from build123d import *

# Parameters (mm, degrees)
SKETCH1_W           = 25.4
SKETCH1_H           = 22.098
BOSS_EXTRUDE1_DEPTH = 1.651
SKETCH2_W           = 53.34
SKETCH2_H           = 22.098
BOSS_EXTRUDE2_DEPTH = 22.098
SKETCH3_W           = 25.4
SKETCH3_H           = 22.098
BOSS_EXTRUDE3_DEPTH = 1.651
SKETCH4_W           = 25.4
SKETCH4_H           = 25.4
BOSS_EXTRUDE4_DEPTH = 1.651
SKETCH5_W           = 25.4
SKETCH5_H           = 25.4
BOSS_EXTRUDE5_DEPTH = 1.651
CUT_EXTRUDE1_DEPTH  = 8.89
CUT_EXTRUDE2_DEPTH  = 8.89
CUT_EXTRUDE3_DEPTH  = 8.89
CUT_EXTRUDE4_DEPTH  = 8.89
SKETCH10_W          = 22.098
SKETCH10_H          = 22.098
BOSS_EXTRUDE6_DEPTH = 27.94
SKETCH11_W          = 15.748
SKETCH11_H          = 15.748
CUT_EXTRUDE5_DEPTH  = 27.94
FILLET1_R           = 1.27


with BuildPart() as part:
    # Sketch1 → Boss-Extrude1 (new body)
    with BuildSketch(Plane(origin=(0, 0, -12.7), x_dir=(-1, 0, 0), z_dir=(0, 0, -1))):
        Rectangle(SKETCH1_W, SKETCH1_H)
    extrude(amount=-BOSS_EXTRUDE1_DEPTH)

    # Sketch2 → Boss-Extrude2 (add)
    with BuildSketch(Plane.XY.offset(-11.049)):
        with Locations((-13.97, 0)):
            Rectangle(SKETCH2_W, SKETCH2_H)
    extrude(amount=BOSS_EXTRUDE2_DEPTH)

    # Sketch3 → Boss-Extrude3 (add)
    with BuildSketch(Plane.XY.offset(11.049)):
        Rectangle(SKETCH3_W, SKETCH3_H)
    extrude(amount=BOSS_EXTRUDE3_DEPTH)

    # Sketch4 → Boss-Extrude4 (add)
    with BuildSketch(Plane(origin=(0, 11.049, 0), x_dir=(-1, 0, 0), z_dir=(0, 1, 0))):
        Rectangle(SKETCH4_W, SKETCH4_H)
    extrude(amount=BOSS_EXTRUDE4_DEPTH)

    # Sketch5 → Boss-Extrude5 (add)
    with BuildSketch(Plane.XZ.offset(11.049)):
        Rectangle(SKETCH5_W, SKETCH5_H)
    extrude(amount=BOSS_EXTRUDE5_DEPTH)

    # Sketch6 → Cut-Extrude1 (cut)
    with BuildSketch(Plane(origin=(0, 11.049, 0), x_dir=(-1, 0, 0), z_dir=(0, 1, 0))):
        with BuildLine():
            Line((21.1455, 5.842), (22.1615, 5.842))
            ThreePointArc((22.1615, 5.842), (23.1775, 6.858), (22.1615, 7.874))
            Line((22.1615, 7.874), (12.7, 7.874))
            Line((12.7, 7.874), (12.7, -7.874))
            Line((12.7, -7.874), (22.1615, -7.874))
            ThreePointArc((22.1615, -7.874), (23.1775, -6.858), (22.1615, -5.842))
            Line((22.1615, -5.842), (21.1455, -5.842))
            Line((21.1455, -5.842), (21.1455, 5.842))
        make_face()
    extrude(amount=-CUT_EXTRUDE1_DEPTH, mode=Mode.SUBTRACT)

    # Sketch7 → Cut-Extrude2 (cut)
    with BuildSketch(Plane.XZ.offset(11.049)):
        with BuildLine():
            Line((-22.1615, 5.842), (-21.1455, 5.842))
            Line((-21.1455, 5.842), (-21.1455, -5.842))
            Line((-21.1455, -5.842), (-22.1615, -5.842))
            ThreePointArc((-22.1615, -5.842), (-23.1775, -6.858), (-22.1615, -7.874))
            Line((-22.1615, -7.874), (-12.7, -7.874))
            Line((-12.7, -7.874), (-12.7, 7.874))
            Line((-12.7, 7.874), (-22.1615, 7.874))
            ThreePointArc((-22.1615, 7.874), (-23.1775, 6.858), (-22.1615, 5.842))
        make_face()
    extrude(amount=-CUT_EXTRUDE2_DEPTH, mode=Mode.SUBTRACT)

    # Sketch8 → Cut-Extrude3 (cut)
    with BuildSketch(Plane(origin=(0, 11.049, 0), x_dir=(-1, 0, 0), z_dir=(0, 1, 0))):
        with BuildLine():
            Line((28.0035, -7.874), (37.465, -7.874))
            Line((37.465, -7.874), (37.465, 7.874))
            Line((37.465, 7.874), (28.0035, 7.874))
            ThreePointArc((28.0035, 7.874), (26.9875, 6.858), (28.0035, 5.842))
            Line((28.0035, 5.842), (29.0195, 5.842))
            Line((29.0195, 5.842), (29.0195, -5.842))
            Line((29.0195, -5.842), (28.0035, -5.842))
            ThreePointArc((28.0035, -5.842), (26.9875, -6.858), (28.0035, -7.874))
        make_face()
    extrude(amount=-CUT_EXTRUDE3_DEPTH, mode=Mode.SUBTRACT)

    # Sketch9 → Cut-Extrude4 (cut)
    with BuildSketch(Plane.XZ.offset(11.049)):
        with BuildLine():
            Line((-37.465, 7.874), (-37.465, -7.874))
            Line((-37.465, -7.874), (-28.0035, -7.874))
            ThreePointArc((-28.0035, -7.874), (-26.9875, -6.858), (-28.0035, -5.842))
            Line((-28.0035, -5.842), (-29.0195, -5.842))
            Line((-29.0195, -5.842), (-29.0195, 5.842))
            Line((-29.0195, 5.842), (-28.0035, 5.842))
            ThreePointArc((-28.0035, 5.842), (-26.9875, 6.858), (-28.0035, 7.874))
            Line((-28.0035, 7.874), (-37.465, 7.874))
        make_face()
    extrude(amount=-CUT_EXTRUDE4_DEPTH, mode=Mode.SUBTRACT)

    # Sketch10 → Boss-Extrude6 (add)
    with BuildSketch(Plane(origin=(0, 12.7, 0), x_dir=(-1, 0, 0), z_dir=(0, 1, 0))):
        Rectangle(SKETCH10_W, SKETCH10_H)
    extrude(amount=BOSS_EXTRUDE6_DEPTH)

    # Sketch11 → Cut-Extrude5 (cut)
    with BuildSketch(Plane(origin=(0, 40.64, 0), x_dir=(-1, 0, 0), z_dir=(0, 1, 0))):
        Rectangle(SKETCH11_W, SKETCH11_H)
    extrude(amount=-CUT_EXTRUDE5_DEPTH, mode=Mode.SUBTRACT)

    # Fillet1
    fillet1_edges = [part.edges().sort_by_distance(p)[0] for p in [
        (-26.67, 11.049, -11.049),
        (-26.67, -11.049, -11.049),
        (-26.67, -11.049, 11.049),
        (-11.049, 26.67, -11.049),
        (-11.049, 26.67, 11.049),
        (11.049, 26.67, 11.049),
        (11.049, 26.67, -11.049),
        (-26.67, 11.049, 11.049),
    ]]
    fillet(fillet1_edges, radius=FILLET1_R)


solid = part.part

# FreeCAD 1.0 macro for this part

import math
import FreeCAD as App
import Part
import Sketcher
Q = App.Units.Quantity


def edges_at(feature, points):
    """Names of the edges that pass closest to the given points."""
    edges = feature.Shape.Edges
    near = lambda p: min(range(len(edges)), key=lambda i: edges[i].distToShape(Part.Vertex(*p))[0])
    return sorted({f"Edge{near(p) + 1}" for p in points})

doc = App.newDocument("Part")
params = doc.addObject("Spreadsheet::Sheet", "Params")
for row, (alias, value) in enumerate([
    ("sketch1_width", "1 in"),
    ("sketch1_height", "0.87 in"),
    ("pad1_length", "0.065 in"),
    ("sketch2_width", "2.1 in"),
    ("sketch2_height", "0.87 in"),
    ("pad2_length", "0.87 in"),
    ("sketch3_width", "1 in"),
    ("sketch3_height", "0.87 in"),
    ("pad3_length", "0.065 in"),
    ("sketch4_width", "1 in"),
    ("pad4_length", "0.065 in"),
    ("sketch5_width", "1 in"),
    ("pad5_length", "0.065 in"),
    ("sketch6_radius", "0.04 in"),
    ("sketch6_width", "0.04 in"),
    ("sketch6_height", "0.62 in"),
    ("pocket1_length", "0.35 in"),
    ("sketch7_radius", "0.04 in"),
    ("sketch7_width", "0.04 in"),
    ("sketch7_height", "0.46 in"),
    ("pocket2_length", "0.35 in"),
    ("sketch8_radius", "0.04 in"),
    ("sketch8_width", "0.04 in"),
    ("sketch8_height", "0.62 in"),
    ("pocket3_length", "0.35 in"),
    ("sketch9_radius", "0.04 in"),
    ("sketch9_width", "0.04 in"),
    ("sketch9_height", "0.62 in"),
    ("pocket4_length", "0.35 in"),
    ("sketch10_width", "0.87 in"),
    ("pad6_length", "1.1 in"),
    ("sketch11_width", "0.62 in"),
    ("pocket5_length", "1.1 in"),
    ("fillet_radius", "0.05 in"),
], start=1):
    params.set(f"A{row}", alias)
    params.set(f"B{row}", "=" + value)
    params.setAlias(f"B{row}", alias)

body = doc.addObject("PartDesign::Body", "Body")

sketch1 = doc.addObject("Sketcher::SketchObject", "Sketch")
body.addObject(sketch1)
sketch1.AttachmentSupport = (doc.XY_Plane, [""])
sketch1.MapMode = "FlatFace"
sketch1.AttachmentOffset = App.Placement(App.Vector(0, 0, -0.5 * 25.4), App.Rotation())
sketch1.addGeometry([
    Part.LineSegment(App.Vector(13, 11, 0), App.Vector(13, -11, 0)),
    Part.LineSegment(App.Vector(13, -11, 0), App.Vector(-13, -11, 0)),
    Part.LineSegment(App.Vector(-13, -11, 0), App.Vector(-13, 11, 0)),
    Part.LineSegment(App.Vector(-13, 11, 0), App.Vector(13, 11, 0)),
], False)
sketch1.addConstraint([
    Sketcher.Constraint("Coincident", 0, 2, 1, 1),
    Sketcher.Constraint("Coincident", 1, 2, 2, 1),
    Sketcher.Constraint("Coincident", 2, 2, 3, 1),
    Sketcher.Constraint("Coincident", 3, 2, 0, 1),
    Sketcher.Constraint("Vertical", 0),
    Sketcher.Constraint("Horizontal", 1),
    Sketcher.Constraint("Vertical", 2),
    Sketcher.Constraint("Horizontal", 3),
    Sketcher.Constraint("Symmetric", 0, 2, 2, 2, -1, 1),
    Sketcher.Constraint("DistanceX", 1, 2, 1, 1, Q("1 in")),
    Sketcher.Constraint("DistanceY", 0, 2, 0, 1, Q("0.87 in")),
])
sketch1.setExpression("Constraints[9]", "Params.sketch1_width")
sketch1.setExpression("Constraints[10]", "Params.sketch1_height")
pad1 = doc.addObject("PartDesign::Pad", "Pad")
body.addObject(pad1)
pad1.Profile = sketch1
pad1.setExpression("Length", "Params.pad1_length")

sketch2 = doc.addObject("Sketcher::SketchObject", "Sketch001")
body.addObject(sketch2)
sketch2.AttachmentSupport = (doc.XY_Plane, [""])
sketch2.MapMode = "FlatFace"
sketch2.AttachmentOffset = App.Placement(App.Vector(0, 0, -0.435 * 25.4), App.Rotation())
sketch2.addGeometry([
    Part.LineSegment(App.Vector(-41, 11, 0), App.Vector(-41, -11, 0)),
    Part.LineSegment(App.Vector(-41, -11, 0), App.Vector(13, -11, 0)),
    Part.LineSegment(App.Vector(13, -11, 0), App.Vector(13, 11, 0)),
    Part.LineSegment(App.Vector(13, 11, 0), App.Vector(-41, 11, 0)),
], False)
sketch2.addConstraint([
    Sketcher.Constraint("Coincident", 0, 2, 1, 1),
    Sketcher.Constraint("Coincident", 1, 2, 2, 1),
    Sketcher.Constraint("Coincident", 2, 2, 3, 1),
    Sketcher.Constraint("Coincident", 3, 2, 0, 1),
    Sketcher.Constraint("Vertical", 0),
    Sketcher.Constraint("Horizontal", 1),
    Sketcher.Constraint("Vertical", 2),
    Sketcher.Constraint("Horizontal", 3),
    Sketcher.Constraint("DistanceX", 1, 1, 1, 2, Q("2.1 in")),
    Sketcher.Constraint("DistanceY", 0, 2, 0, 1, Q("0.87 in")),
    Sketcher.Constraint("DistanceX", 0, 2, -1, 1, Q("1.6 in")),
    Sketcher.Constraint("DistanceY", 0, 2, -1, 1, Q("0.435 in")),
])
sketch2.setExpression("Constraints[8]", "Params.sketch2_width")
sketch2.setExpression("Constraints[9]", "Params.sketch2_height")
pad2 = doc.addObject("PartDesign::Pad", "Pad001")
body.addObject(pad2)
pad2.Profile = sketch2
pad2.setExpression("Length", "Params.pad2_length")

sketch3 = doc.addObject("Sketcher::SketchObject", "Sketch002")
body.addObject(sketch3)
sketch3.AttachmentSupport = (doc.XY_Plane, [""])
sketch3.MapMode = "FlatFace"
sketch3.AttachmentOffset = App.Placement(App.Vector(0, 0, 0.435 * 25.4), App.Rotation())
sketch3.addGeometry([
    Part.LineSegment(App.Vector(-13, 11, 0), App.Vector(-13, -11, 0)),
    Part.LineSegment(App.Vector(-13, -11, 0), App.Vector(13, -11, 0)),
    Part.LineSegment(App.Vector(13, -11, 0), App.Vector(13, 11, 0)),
    Part.LineSegment(App.Vector(13, 11, 0), App.Vector(-13, 11, 0)),
], False)
sketch3.addConstraint([
    Sketcher.Constraint("Coincident", 0, 2, 1, 1),
    Sketcher.Constraint("Coincident", 1, 2, 2, 1),
    Sketcher.Constraint("Coincident", 2, 2, 3, 1),
    Sketcher.Constraint("Coincident", 3, 2, 0, 1),
    Sketcher.Constraint("Vertical", 0),
    Sketcher.Constraint("Horizontal", 1),
    Sketcher.Constraint("Vertical", 2),
    Sketcher.Constraint("Horizontal", 3),
    Sketcher.Constraint("Symmetric", 0, 2, 2, 2, -1, 1),
    Sketcher.Constraint("DistanceX", 1, 1, 1, 2, Q("1 in")),
    Sketcher.Constraint("DistanceY", 0, 2, 0, 1, Q("0.87 in")),
])
sketch3.setExpression("Constraints[9]", "Params.sketch3_width")
sketch3.setExpression("Constraints[10]", "Params.sketch3_height")
pad3 = doc.addObject("PartDesign::Pad", "Pad002")
body.addObject(pad3)
pad3.Profile = sketch3
pad3.setExpression("Length", "Params.pad3_length")

sketch4 = doc.addObject("Sketcher::SketchObject", "Sketch003")
body.addObject(sketch4)
sketch4.AttachmentSupport = (doc.XZ_Plane, [""])
sketch4.MapMode = "FlatFace"
sketch4.AttachmentOffset = App.Placement(App.Vector(0, 0, -0.435 * 25.4), App.Rotation())
sketch4.addGeometry([
    Part.LineSegment(App.Vector(13, 13, 0), App.Vector(13, -13, 0)),
    Part.LineSegment(App.Vector(13, -13, 0), App.Vector(-13, -13, 0)),
    Part.LineSegment(App.Vector(-13, -13, 0), App.Vector(-13, 13, 0)),
    Part.LineSegment(App.Vector(-13, 13, 0), App.Vector(13, 13, 0)),
], False)
sketch4.addConstraint([
    Sketcher.Constraint("Coincident", 0, 2, 1, 1),
    Sketcher.Constraint("Coincident", 1, 2, 2, 1),
    Sketcher.Constraint("Coincident", 2, 2, 3, 1),
    Sketcher.Constraint("Coincident", 3, 2, 0, 1),
    Sketcher.Constraint("Vertical", 0),
    Sketcher.Constraint("Horizontal", 1),
    Sketcher.Constraint("Vertical", 2),
    Sketcher.Constraint("Horizontal", 3),
    Sketcher.Constraint("Symmetric", 0, 2, 2, 2, -1, 1),
    Sketcher.Constraint("Equal", 3, 0),
    Sketcher.Constraint("DistanceX", 1, 2, 1, 1, Q("1 in")),
])
sketch4.setExpression("Constraints[10]", "Params.sketch4_width")
pad4 = doc.addObject("PartDesign::Pad", "Pad003")
body.addObject(pad4)
pad4.Profile = sketch4
pad4.setExpression("Length", "Params.pad4_length")
pad4.Reversed = True

sketch5 = doc.addObject("Sketcher::SketchObject", "Sketch004")
body.addObject(sketch5)
sketch5.AttachmentSupport = (doc.XZ_Plane, [""])
sketch5.MapMode = "FlatFace"
sketch5.AttachmentOffset = App.Placement(App.Vector(0, 0, 0.435 * 25.4), App.Rotation())
sketch5.addGeometry([
    Part.LineSegment(App.Vector(-13, 13, 0), App.Vector(-13, -13, 0)),
    Part.LineSegment(App.Vector(-13, -13, 0), App.Vector(13, -13, 0)),
    Part.LineSegment(App.Vector(13, -13, 0), App.Vector(13, 13, 0)),
    Part.LineSegment(App.Vector(13, 13, 0), App.Vector(-13, 13, 0)),
], False)
sketch5.addConstraint([
    Sketcher.Constraint("Coincident", 0, 2, 1, 1),
    Sketcher.Constraint("Coincident", 1, 2, 2, 1),
    Sketcher.Constraint("Coincident", 2, 2, 3, 1),
    Sketcher.Constraint("Coincident", 3, 2, 0, 1),
    Sketcher.Constraint("Vertical", 0),
    Sketcher.Constraint("Horizontal", 1),
    Sketcher.Constraint("Vertical", 2),
    Sketcher.Constraint("Horizontal", 3),
    Sketcher.Constraint("Symmetric", 0, 2, 2, 2, -1, 1),
    Sketcher.Constraint("Equal", 3, 0),
    Sketcher.Constraint("DistanceX", 1, 1, 1, 2, Q("1 in")),
])
sketch5.setExpression("Constraints[10]", "Params.sketch5_width")
pad5 = doc.addObject("PartDesign::Pad", "Pad004")
body.addObject(pad5)
pad5.Profile = sketch5
pad5.setExpression("Length", "Params.pad5_length")

sketch6 = doc.addObject("Sketcher::SketchObject", "Sketch005")
body.addObject(sketch6)
sketch6.AttachmentSupport = (doc.XZ_Plane, [""])
sketch6.MapMode = "FlatFace"
sketch6.AttachmentOffset = App.Placement(App.Vector(0, 0, -0.435 * 25.4), App.Rotation())
sketch6.addGeometry([
    Part.LineSegment(App.Vector(-21.1, 5.8, 0), App.Vector(-22.2, 5.8, 0)),
    Part.ArcOfCircle(Part.Circle(App.Vector(-22.2, 6.9, 0), App.Vector(0, 0, 1), 1), math.radians(90), math.radians(270)),
    Part.LineSegment(App.Vector(-22.2, 7.9, 0), App.Vector(-12.7, 7.9, 0)),
    Part.LineSegment(App.Vector(-12.7, 7.9, 0), App.Vector(-12.7, -7.9, 0)),
    Part.LineSegment(App.Vector(-12.7, -7.9, 0), App.Vector(-22.2, -7.9, 0)),
    Part.ArcOfCircle(Part.Circle(App.Vector(-22.2, -6.9, 0), App.Vector(0, 0, 1), 1), math.radians(90), math.radians(270)),
    Part.LineSegment(App.Vector(-22.2, -5.8, 0), App.Vector(-21.1, -5.8, 0)),
    Part.LineSegment(App.Vector(-21.1, -5.8, 0), App.Vector(-21.1, 5.8, 0)),
], False)
sketch6.addConstraint([
    Sketcher.Constraint("Tangent", 0, 2, 1, 2),
    Sketcher.Constraint("Tangent", 1, 1, 2, 1),
    Sketcher.Constraint("Coincident", 2, 2, 3, 1),
    Sketcher.Constraint("Coincident", 3, 2, 4, 1),
    Sketcher.Constraint("Tangent", 4, 2, 5, 2),
    Sketcher.Constraint("Tangent", 5, 1, 6, 1),
    Sketcher.Constraint("Coincident", 6, 2, 7, 1),
    Sketcher.Constraint("Coincident", 7, 2, 0, 1),
    Sketcher.Constraint("Horizontal", 0),
    Sketcher.Constraint("Horizontal", 2),
    Sketcher.Constraint("Vertical", 3),
    Sketcher.Constraint("Horizontal", 4),
    Sketcher.Constraint("Horizontal", 6),
    Sketcher.Constraint("Vertical", 7),
    Sketcher.Constraint("Equal", 1, 5),
    Sketcher.Constraint("Symmetric", 1, 3, 5, 3, -1),
    Sketcher.Constraint("Radius", 1, Q("0.04 in")),
    Sketcher.Constraint("DistanceX", 0, 2, 0, 1, Q("0.04 in")),
    Sketcher.Constraint("DistanceY", 3, 2, 3, 1, Q("0.62 in")),
    Sketcher.Constraint("DistanceX", 2, 2, -1, 1, Q("0.5 in")),
    Sketcher.Constraint("DistanceX", 2, 1, 2, 2, Q("0.3725 in")),
])
sketch6.setExpression("Constraints[16]", "Params.sketch6_radius")
sketch6.setExpression("Constraints[17]", "Params.sketch6_width")
sketch6.setExpression("Constraints[18]", "Params.sketch6_height")
pocket1 = doc.addObject("PartDesign::Pocket", "Pocket")
body.addObject(pocket1)
pocket1.Profile = sketch6
pocket1.setExpression("Length", "Params.pocket1_length")
pocket1.Reversed = True

sketch7 = doc.addObject("Sketcher::SketchObject", "Sketch006")
body.addObject(sketch7)
sketch7.AttachmentSupport = (doc.XZ_Plane, [""])
sketch7.MapMode = "FlatFace"
sketch7.AttachmentOffset = App.Placement(App.Vector(0, 0, 0.435 * 25.4), App.Rotation())
sketch7.addGeometry([
    Part.LineSegment(App.Vector(-22.2, 5.8, 0), App.Vector(-21.1, 5.8, 0)),
    Part.LineSegment(App.Vector(-21.1, 5.8, 0), App.Vector(-21.1, -5.8, 0)),
    Part.LineSegment(App.Vector(-21.1, -5.8, 0), App.Vector(-22.2, -5.8, 0)),
    Part.ArcOfCircle(Part.Circle(App.Vector(-22.2, -6.9, 0), App.Vector(0, 0, 1), 1), math.radians(90), math.radians(270)),
    Part.LineSegment(App.Vector(-22.2, -7.9, 0), App.Vector(-12.7, -7.9, 0)),
    Part.LineSegment(App.Vector(-12.7, -7.9, 0), App.Vector(-12.7, 7.9, 0)),
    Part.LineSegment(App.Vector(-12.7, 7.9, 0), App.Vector(-22.2, 7.9, 0)),
    Part.ArcOfCircle(Part.Circle(App.Vector(-22.2, 6.9, 0), App.Vector(0, 0, 1), 1), math.radians(90), math.radians(270)),
], False)
sketch7.addConstraint([
    Sketcher.Constraint("Coincident", 0, 2, 1, 1),
    Sketcher.Constraint("Coincident", 1, 2, 2, 1),
    Sketcher.Constraint("Tangent", 2, 2, 3, 1),
    Sketcher.Constraint("Tangent", 3, 2, 4, 1),
    Sketcher.Constraint("Coincident", 4, 2, 5, 1),
    Sketcher.Constraint("Coincident", 5, 2, 6, 1),
    Sketcher.Constraint("Tangent", 6, 2, 7, 1),
    Sketcher.Constraint("Tangent", 7, 2, 0, 1),
    Sketcher.Constraint("Horizontal", 0),
    Sketcher.Constraint("Vertical", 1),
    Sketcher.Constraint("Horizontal", 2),
    Sketcher.Constraint("Horizontal", 4),
    Sketcher.Constraint("Vertical", 5),
    Sketcher.Constraint("Horizontal", 6),
    Sketcher.Constraint("Equal", 3, 7),
    Sketcher.Constraint("Symmetric", 3, 3, 7, 3, -1),
    Sketcher.Constraint("Radius", 3, Q("0.04 in")),
    Sketcher.Constraint("DistanceX", 0, 1, 0, 2, Q("0.04 in")),
    Sketcher.Constraint("DistanceY", 1, 2, 1, 1, Q("0.46 in")),
    Sketcher.Constraint("DistanceX", 4, 2, -1, 1, Q("0.5 in")),
    Sketcher.Constraint("DistanceX", 4, 1, 4, 2, Q("0.3725 in")),
])
sketch7.setExpression("Constraints[16]", "Params.sketch7_radius")
sketch7.setExpression("Constraints[17]", "Params.sketch7_width")
sketch7.setExpression("Constraints[18]", "Params.sketch7_height")
pocket2 = doc.addObject("PartDesign::Pocket", "Pocket001")
body.addObject(pocket2)
pocket2.Profile = sketch7
pocket2.setExpression("Length", "Params.pocket2_length")

sketch8 = doc.addObject("Sketcher::SketchObject", "Sketch007")
body.addObject(sketch8)
sketch8.AttachmentSupport = (doc.XZ_Plane, [""])
sketch8.MapMode = "FlatFace"
sketch8.AttachmentOffset = App.Placement(App.Vector(0, 0, -0.435 * 25.4), App.Rotation())
sketch8.addGeometry([
    Part.LineSegment(App.Vector(-28, -7.9, 0), App.Vector(-37.5, -7.9, 0)),
    Part.LineSegment(App.Vector(-37.5, -7.9, 0), App.Vector(-37.5, 7.9, 0)),
    Part.LineSegment(App.Vector(-37.5, 7.9, 0), App.Vector(-28, 7.9, 0)),
    Part.ArcOfCircle(Part.Circle(App.Vector(-28, 6.9, 0), App.Vector(0, 0, 1), 1), math.radians(-90), math.radians(90)),
    Part.LineSegment(App.Vector(-28, 5.8, 0), App.Vector(-29, 5.8, 0)),
    Part.LineSegment(App.Vector(-29, 5.8, 0), App.Vector(-29, -5.8, 0)),
    Part.LineSegment(App.Vector(-29, -5.8, 0), App.Vector(-28, -5.8, 0)),
    Part.ArcOfCircle(Part.Circle(App.Vector(-28, -6.9, 0), App.Vector(0, 0, 1), 1), math.radians(-90), math.radians(90)),
], False)
sketch8.addConstraint([
    Sketcher.Constraint("Coincident", 0, 2, 1, 1),
    Sketcher.Constraint("Coincident", 1, 2, 2, 1),
    Sketcher.Constraint("Tangent", 2, 2, 3, 2),
    Sketcher.Constraint("Tangent", 3, 1, 4, 1),
    Sketcher.Constraint("Coincident", 4, 2, 5, 1),
    Sketcher.Constraint("Coincident", 5, 2, 6, 1),
    Sketcher.Constraint("Tangent", 6, 2, 7, 2),
    Sketcher.Constraint("Tangent", 7, 1, 0, 1),
    Sketcher.Constraint("Horizontal", 0),
    Sketcher.Constraint("Vertical", 1),
    Sketcher.Constraint("Horizontal", 2),
    Sketcher.Constraint("Horizontal", 4),
    Sketcher.Constraint("Vertical", 5),
    Sketcher.Constraint("Horizontal", 6),
    Sketcher.Constraint("Equal", 3, 7),
    Sketcher.Constraint("Symmetric", 3, 3, 7, 3, -1),
    Sketcher.Constraint("Radius", 3, Q("0.04 in")),
    Sketcher.Constraint("DistanceX", 4, 2, 4, 1, Q("0.04 in")),
    Sketcher.Constraint("DistanceY", 1, 1, 1, 2, Q("0.62 in")),
    Sketcher.Constraint("DistanceX", 0, 2, 0, 1, Q("0.3725 in")),
    Sketcher.Constraint("DistanceX", 0, 2, -1, 1, Q("1.475 in")),
])
sketch8.setExpression("Constraints[16]", "Params.sketch8_radius")
sketch8.setExpression("Constraints[17]", "Params.sketch8_width")
sketch8.setExpression("Constraints[18]", "Params.sketch8_height")
pocket3 = doc.addObject("PartDesign::Pocket", "Pocket002")
body.addObject(pocket3)
pocket3.Profile = sketch8
pocket3.setExpression("Length", "Params.pocket3_length")
pocket3.Reversed = True

sketch9 = doc.addObject("Sketcher::SketchObject", "Sketch008")
body.addObject(sketch9)
sketch9.AttachmentSupport = (doc.XZ_Plane, [""])
sketch9.MapMode = "FlatFace"
sketch9.AttachmentOffset = App.Placement(App.Vector(0, 0, 0.435 * 25.4), App.Rotation())
sketch9.addGeometry([
    Part.LineSegment(App.Vector(-37.5, 7.9, 0), App.Vector(-37.5, -7.9, 0)),
    Part.LineSegment(App.Vector(-37.5, -7.9, 0), App.Vector(-28, -7.9, 0)),
    Part.ArcOfCircle(Part.Circle(App.Vector(-28, -6.9, 0), App.Vector(0, 0, 1), 1), math.radians(-90), math.radians(90)),
    Part.LineSegment(App.Vector(-28, -5.8, 0), App.Vector(-29, -5.8, 0)),
    Part.LineSegment(App.Vector(-29, -5.8, 0), App.Vector(-29, 5.8, 0)),
    Part.LineSegment(App.Vector(-29, 5.8, 0), App.Vector(-28, 5.8, 0)),
    Part.ArcOfCircle(Part.Circle(App.Vector(-28, 6.9, 0), App.Vector(0, 0, 1), 1), math.radians(-90), math.radians(90)),
    Part.LineSegment(App.Vector(-28, 7.9, 0), App.Vector(-37.5, 7.9, 0)),
], False)
sketch9.addConstraint([
    Sketcher.Constraint("Coincident", 0, 2, 1, 1),
    Sketcher.Constraint("Tangent", 1, 2, 2, 1),
    Sketcher.Constraint("Tangent", 2, 2, 3, 1),
    Sketcher.Constraint("Coincident", 3, 2, 4, 1),
    Sketcher.Constraint("Coincident", 4, 2, 5, 1),
    Sketcher.Constraint("Tangent", 5, 2, 6, 1),
    Sketcher.Constraint("Tangent", 6, 2, 7, 1),
    Sketcher.Constraint("Coincident", 7, 2, 0, 1),
    Sketcher.Constraint("Vertical", 0),
    Sketcher.Constraint("Horizontal", 1),
    Sketcher.Constraint("Horizontal", 3),
    Sketcher.Constraint("Vertical", 4),
    Sketcher.Constraint("Horizontal", 5),
    Sketcher.Constraint("Horizontal", 7),
    Sketcher.Constraint("Equal", 2, 6),
    Sketcher.Constraint("Symmetric", 2, 3, 6, 3, -1),
    Sketcher.Constraint("Radius", 2, Q("0.04 in")),
    Sketcher.Constraint("DistanceX", 3, 2, 3, 1, Q("0.04 in")),
    Sketcher.Constraint("DistanceY", 0, 2, 0, 1, Q("0.62 in")),
    Sketcher.Constraint("DistanceX", 1, 1, 1, 2, Q("0.3725 in")),
    Sketcher.Constraint("DistanceX", 0, 2, -1, 1, Q("1.475 in")),
])
sketch9.setExpression("Constraints[16]", "Params.sketch9_radius")
sketch9.setExpression("Constraints[17]", "Params.sketch9_width")
sketch9.setExpression("Constraints[18]", "Params.sketch9_height")
pocket4 = doc.addObject("PartDesign::Pocket", "Pocket003")
body.addObject(pocket4)
pocket4.Profile = sketch9
pocket4.setExpression("Length", "Params.pocket4_length")

sketch10 = doc.addObject("Sketcher::SketchObject", "Sketch009")
body.addObject(sketch10)
sketch10.AttachmentSupport = (doc.XZ_Plane, [""])
sketch10.MapMode = "FlatFace"
sketch10.AttachmentOffset = App.Placement(App.Vector(0, 0, -0.5 * 25.4), App.Rotation())
sketch10.addGeometry([
    Part.LineSegment(App.Vector(11, 11, 0), App.Vector(11, -11, 0)),
    Part.LineSegment(App.Vector(11, -11, 0), App.Vector(-11, -11, 0)),
    Part.LineSegment(App.Vector(-11, -11, 0), App.Vector(-11, 11, 0)),
    Part.LineSegment(App.Vector(-11, 11, 0), App.Vector(11, 11, 0)),
], False)
sketch10.addConstraint([
    Sketcher.Constraint("Coincident", 0, 2, 1, 1),
    Sketcher.Constraint("Coincident", 1, 2, 2, 1),
    Sketcher.Constraint("Coincident", 2, 2, 3, 1),
    Sketcher.Constraint("Coincident", 3, 2, 0, 1),
    Sketcher.Constraint("Vertical", 0),
    Sketcher.Constraint("Horizontal", 1),
    Sketcher.Constraint("Vertical", 2),
    Sketcher.Constraint("Horizontal", 3),
    Sketcher.Constraint("Symmetric", 0, 2, 2, 2, -1, 1),
    Sketcher.Constraint("Equal", 3, 0),
    Sketcher.Constraint("DistanceX", 1, 2, 1, 1, Q("0.87 in")),
])
sketch10.setExpression("Constraints[10]", "Params.sketch10_width")
pad6 = doc.addObject("PartDesign::Pad", "Pad005")
body.addObject(pad6)
pad6.Profile = sketch10
pad6.setExpression("Length", "Params.pad6_length")
pad6.Reversed = True

sketch11 = doc.addObject("Sketcher::SketchObject", "Sketch010")
body.addObject(sketch11)
sketch11.AttachmentSupport = (doc.XZ_Plane, [""])
sketch11.MapMode = "FlatFace"
sketch11.AttachmentOffset = App.Placement(App.Vector(0, 0, -1.6 * 25.4), App.Rotation())
sketch11.addGeometry([
    Part.LineSegment(App.Vector(8, 8, 0), App.Vector(8, -8, 0)),
    Part.LineSegment(App.Vector(8, -8, 0), App.Vector(-8, -8, 0)),
    Part.LineSegment(App.Vector(-8, -8, 0), App.Vector(-8, 8, 0)),
    Part.LineSegment(App.Vector(-8, 8, 0), App.Vector(8, 8, 0)),
], False)
sketch11.addConstraint([
    Sketcher.Constraint("Coincident", 0, 2, 1, 1),
    Sketcher.Constraint("Coincident", 1, 2, 2, 1),
    Sketcher.Constraint("Coincident", 2, 2, 3, 1),
    Sketcher.Constraint("Coincident", 3, 2, 0, 1),
    Sketcher.Constraint("Vertical", 0),
    Sketcher.Constraint("Horizontal", 1),
    Sketcher.Constraint("Vertical", 2),
    Sketcher.Constraint("Horizontal", 3),
    Sketcher.Constraint("Symmetric", 0, 2, 2, 2, -1, 1),
    Sketcher.Constraint("Equal", 3, 0),
    Sketcher.Constraint("DistanceX", 1, 2, 1, 1, Q("0.62 in")),
])
sketch11.setExpression("Constraints[10]", "Params.sketch11_width")
pocket5 = doc.addObject("PartDesign::Pocket", "Pocket004")
body.addObject(pocket5)
pocket5.Profile = sketch11
pocket5.setExpression("Length", "Params.pocket5_length")
pocket5.Reversed = True
doc.recompute()

fillet = doc.addObject("PartDesign::Fillet", "Fillet")
body.addObject(fillet)
fillet.Base = (pocket5, edges_at(pocket5, [
    (-26.67, 11.049, -11.049),
    (-26.67, -11.049, -11.049),
    (-26.67, -11.049, 11.049),
    (-11.049, 26.67, -11.049),
    (-11.049, 26.67, 11.049),
    (11.049, 26.67, 11.049),
    (11.049, 26.67, -11.049),
    (-26.67, 11.049, 11.049),
]))
fillet.setExpression("Radius", "Params.fillet_radius")

doc.recompute()
